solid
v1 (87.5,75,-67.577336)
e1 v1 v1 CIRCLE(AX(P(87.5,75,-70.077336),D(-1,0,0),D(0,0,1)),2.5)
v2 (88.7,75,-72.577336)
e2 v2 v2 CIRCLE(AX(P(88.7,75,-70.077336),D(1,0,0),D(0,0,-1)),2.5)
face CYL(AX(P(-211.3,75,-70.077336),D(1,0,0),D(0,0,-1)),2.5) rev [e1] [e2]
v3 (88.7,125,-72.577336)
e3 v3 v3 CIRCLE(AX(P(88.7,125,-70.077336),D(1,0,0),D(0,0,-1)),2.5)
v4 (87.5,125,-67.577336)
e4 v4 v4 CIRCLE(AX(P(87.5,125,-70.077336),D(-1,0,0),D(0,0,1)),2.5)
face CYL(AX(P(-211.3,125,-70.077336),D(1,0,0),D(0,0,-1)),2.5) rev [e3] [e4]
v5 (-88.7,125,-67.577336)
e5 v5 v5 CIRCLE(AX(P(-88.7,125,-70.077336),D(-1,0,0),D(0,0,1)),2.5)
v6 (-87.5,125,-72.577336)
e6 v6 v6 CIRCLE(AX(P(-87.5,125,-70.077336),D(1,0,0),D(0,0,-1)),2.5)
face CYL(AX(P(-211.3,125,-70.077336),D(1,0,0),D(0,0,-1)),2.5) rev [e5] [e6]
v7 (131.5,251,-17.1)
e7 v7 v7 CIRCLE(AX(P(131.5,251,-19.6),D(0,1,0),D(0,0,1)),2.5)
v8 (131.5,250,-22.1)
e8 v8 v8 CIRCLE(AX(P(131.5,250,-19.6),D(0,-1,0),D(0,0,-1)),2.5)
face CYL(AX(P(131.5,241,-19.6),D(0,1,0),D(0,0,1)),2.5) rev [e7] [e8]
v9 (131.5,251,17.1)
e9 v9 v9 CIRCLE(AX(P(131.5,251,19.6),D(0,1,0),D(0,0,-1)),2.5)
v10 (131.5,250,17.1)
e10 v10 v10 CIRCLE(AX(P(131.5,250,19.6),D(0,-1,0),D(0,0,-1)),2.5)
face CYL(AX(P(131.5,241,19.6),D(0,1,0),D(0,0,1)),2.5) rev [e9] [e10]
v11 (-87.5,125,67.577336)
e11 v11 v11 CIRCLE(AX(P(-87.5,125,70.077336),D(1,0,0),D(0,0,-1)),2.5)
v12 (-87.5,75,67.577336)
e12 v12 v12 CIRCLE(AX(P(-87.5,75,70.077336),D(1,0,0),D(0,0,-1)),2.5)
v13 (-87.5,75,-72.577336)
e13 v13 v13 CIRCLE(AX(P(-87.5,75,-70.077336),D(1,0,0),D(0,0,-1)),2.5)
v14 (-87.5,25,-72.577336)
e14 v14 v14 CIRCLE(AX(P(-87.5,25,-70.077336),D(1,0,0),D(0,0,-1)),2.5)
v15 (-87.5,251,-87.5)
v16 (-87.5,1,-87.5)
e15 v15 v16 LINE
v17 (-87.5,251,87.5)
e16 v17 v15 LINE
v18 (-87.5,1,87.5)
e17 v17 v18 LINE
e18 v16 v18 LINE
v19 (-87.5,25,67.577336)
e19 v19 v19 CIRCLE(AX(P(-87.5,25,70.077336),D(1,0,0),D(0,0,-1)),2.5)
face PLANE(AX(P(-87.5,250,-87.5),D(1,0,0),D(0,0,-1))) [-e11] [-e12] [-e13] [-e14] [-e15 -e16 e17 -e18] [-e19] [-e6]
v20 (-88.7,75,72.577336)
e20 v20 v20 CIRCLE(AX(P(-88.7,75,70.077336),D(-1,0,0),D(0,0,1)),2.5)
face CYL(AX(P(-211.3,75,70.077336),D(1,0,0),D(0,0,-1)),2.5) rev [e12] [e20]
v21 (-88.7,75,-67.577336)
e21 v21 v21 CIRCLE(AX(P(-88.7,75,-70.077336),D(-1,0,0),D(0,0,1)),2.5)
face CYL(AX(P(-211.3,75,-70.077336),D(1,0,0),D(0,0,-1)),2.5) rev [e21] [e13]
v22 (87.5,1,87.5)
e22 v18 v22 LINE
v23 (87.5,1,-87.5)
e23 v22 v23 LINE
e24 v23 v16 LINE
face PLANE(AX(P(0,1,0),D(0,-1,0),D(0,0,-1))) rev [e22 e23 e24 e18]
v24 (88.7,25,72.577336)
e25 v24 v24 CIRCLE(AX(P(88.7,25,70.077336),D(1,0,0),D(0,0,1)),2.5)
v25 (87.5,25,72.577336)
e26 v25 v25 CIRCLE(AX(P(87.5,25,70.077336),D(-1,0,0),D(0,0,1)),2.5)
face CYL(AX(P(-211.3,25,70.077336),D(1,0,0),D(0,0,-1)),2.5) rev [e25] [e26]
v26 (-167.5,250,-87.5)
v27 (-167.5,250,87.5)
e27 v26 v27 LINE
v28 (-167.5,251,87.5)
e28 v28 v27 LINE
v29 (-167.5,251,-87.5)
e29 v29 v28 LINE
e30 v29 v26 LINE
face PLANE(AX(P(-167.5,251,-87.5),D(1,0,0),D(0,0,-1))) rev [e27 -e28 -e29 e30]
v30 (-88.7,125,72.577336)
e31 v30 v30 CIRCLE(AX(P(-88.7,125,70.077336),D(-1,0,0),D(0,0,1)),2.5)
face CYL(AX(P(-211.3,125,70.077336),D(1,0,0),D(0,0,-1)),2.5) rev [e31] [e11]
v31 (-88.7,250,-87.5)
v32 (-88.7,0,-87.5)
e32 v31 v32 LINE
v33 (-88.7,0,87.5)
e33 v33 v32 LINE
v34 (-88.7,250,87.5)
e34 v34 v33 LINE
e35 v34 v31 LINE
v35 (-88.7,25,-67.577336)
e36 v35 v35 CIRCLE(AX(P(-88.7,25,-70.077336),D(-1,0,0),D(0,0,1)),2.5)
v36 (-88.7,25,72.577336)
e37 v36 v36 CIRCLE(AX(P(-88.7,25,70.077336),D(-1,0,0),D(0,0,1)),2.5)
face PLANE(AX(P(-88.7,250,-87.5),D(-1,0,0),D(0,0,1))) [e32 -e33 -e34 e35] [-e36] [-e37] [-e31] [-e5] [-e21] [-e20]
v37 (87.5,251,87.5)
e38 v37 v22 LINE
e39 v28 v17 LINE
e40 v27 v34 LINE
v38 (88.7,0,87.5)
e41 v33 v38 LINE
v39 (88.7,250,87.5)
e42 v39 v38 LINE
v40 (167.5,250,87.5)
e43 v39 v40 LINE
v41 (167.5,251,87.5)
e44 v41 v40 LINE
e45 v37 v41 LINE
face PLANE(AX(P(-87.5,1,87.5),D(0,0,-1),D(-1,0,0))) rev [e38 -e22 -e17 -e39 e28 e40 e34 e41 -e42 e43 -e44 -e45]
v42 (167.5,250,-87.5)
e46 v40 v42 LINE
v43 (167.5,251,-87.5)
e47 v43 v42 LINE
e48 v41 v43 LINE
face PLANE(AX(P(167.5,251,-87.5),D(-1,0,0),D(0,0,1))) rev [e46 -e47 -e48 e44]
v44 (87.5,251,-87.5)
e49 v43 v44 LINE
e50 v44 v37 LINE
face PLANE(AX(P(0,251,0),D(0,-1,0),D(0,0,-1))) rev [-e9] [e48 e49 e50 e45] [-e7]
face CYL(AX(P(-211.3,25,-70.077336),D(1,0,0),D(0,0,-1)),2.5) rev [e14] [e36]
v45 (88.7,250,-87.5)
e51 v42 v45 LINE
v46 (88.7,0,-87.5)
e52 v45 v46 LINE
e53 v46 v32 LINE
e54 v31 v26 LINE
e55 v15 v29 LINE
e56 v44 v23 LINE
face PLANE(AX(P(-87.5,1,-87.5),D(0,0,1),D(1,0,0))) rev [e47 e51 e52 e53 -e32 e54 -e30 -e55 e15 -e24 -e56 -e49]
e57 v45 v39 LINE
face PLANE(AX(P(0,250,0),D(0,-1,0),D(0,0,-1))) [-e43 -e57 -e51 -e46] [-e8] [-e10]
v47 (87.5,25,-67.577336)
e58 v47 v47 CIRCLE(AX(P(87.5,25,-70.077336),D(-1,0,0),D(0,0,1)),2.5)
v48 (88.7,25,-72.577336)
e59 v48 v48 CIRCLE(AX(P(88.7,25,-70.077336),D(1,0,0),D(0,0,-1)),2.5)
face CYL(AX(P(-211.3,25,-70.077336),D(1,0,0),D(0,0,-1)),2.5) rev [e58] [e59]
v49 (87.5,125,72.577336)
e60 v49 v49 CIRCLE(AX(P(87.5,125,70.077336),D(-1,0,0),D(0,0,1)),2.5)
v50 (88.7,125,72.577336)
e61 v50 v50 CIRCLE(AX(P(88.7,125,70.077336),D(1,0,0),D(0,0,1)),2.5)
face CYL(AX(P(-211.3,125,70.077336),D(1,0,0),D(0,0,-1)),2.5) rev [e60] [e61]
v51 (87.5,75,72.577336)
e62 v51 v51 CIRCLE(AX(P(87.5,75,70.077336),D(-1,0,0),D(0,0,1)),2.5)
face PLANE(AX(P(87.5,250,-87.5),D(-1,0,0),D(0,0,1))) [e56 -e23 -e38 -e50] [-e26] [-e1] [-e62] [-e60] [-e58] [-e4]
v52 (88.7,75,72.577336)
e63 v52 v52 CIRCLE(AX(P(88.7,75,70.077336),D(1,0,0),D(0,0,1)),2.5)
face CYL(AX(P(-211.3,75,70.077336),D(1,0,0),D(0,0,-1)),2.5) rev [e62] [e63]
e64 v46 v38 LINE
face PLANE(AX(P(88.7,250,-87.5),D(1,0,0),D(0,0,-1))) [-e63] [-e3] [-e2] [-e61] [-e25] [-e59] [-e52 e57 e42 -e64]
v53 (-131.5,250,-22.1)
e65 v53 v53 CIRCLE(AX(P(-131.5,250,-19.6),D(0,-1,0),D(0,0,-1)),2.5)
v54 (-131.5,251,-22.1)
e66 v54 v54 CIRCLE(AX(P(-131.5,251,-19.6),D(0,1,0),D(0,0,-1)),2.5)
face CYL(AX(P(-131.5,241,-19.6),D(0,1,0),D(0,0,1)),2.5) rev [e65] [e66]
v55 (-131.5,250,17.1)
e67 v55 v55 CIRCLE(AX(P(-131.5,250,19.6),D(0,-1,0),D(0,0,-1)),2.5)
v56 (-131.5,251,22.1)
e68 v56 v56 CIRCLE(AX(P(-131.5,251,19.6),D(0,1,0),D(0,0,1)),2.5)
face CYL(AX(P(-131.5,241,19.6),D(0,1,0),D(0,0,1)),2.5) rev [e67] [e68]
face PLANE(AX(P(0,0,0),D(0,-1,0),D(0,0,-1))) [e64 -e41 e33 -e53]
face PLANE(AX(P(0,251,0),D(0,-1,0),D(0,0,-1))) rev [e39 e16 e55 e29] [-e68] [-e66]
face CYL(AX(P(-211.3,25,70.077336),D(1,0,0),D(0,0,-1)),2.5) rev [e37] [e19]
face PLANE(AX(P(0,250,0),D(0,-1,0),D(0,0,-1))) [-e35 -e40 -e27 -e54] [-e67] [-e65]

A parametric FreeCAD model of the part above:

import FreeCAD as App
import Part
import Sketcher

V = App.Vector


def add_polygon(sketch, points):
    """Adds a closed chain of lines whose ends are joined by coincident constraints."""
    first, n = sketch.GeometryCount, len(points)
    for a, b in zip(points, points[1:] + points[:1]):
        sketch.addGeometry(Part.LineSegment(App.Vector(*a, 0), App.Vector(*b, 0)), False)
    for i in range(n):
        sketch.addConstraint(Sketcher.Constraint("Coincident", first + i, 2, first + (i + 1) % n, 1))

doc = App.newDocument("Part")
body = doc.addObject("PartDesign::Body", "Body")

sketch1 = body.newObject("Sketcher::SketchObject", "Sketch")
sketch1.AttachmentSupport = (doc.getObject("XZ_Plane"), [""])
sketch1.MapMode = "FlatFace"
add_polygon(sketch1, [(-87.5, -87.5), (-87.5, 87.5), (87.5, 87.5), (87.5, -87.5)])
sketch1.addConstraint([
    Sketcher.Constraint("Vertical", 0),
    Sketcher.Constraint("Horizontal", 1),
    Sketcher.Constraint("Vertical", 2),
    Sketcher.Constraint("Horizontal", 3),
    Sketcher.Constraint("Symmetric", 0, 2, 2, 2, -1, 1),
    Sketcher.Constraint("Equal", 3, 0),
    Sketcher.Constraint("DistanceX", 1, 1, 1, 2, 175.0),
])
pad1 = body.newObject("PartDesign::Pad", "Pad")
pad1.Profile = sketch1
pad1.Length = 1
pad1.Reversed = True

sketch2 = body.newObject("Sketcher::SketchObject", "Sketch001")
sketch2.AttachmentSupport = (doc.getObject("XZ_Plane"), [""])
sketch2.MapMode = "FlatFace"
add_polygon(sketch2, [(-88.7, 87.5), (-88.7, -87.5), (-87.5, -87.5), (-87.5, 87.5)])
add_polygon(sketch2, [(87.5, 87.5), (87.5, -87.5), (88.7, -87.5), (88.7, 87.5)])
sketch2.addConstraint([
    Sketcher.Constraint("Vertical", 0),
    Sketcher.Constraint("Horizontal", 1),
    Sketcher.Constraint("Vertical", 2),
    Sketcher.Constraint("Horizontal", 3),
    Sketcher.Constraint("Vertical", 4),
    Sketcher.Constraint("Horizontal", 5),
    Sketcher.Constraint("Vertical", 6),
    Sketcher.Constraint("Horizontal", 7),
    Sketcher.Constraint("Symmetric", 2, 2, 4, 2, -1, 1),
    Sketcher.Constraint("Symmetric", 0, 2, 6, 2, -1, 1),
    Sketcher.Constraint("Horizontal", 1, 2, 4, 2),
    Sketcher.Constraint("DistanceY", 0, 2, 0, 1, 175.0),
    Sketcher.Constraint("DistanceX", 1, 1, 1, 2, 1.2),
    Sketcher.Constraint("DistanceX", 1, 2, 4, 2, 175.0),
])
pad2 = body.newObject("PartDesign::Pad", "Pad001")
pad2.Profile = sketch2
pad2.Length = 250
pad2.Reversed = True

sketch3 = body.newObject("Sketcher::SketchObject", "Sketch002")
sketch3.AttachmentSupport = (doc.getObject("XZ_Plane"), [""])
sketch3.MapMode = "FlatFace"
sketch3.AttachmentOffset = App.Placement(V(0, 0, -250), App.Rotation())
add_polygon(sketch3, [(-167.5, -87.5), (-167.5, 87.5), (-87.5, 87.5), (-87.5, -87.5)])
add_polygon(sketch3, [(87.5, -87.5), (87.5, 87.5), (167.5, 87.5), (167.5, -87.5)])
sketch3.addConstraint([
    Sketcher.Constraint("Vertical", 0),
    Sketcher.Constraint("Horizontal", 1),
    Sketcher.Constraint("Vertical", 2),
    Sketcher.Constraint("Horizontal", 3),
    Sketcher.Constraint("Vertical", 4),
    Sketcher.Constraint("Horizontal", 5),
    Sketcher.Constraint("Vertical", 6),
    Sketcher.Constraint("Horizontal", 7),
    Sketcher.Constraint("Symmetric", 2, 2, 4, 2, -1, 1),
    Sketcher.Constraint("Symmetric", 0, 2, 6, 2, -1, 1),
    Sketcher.Constraint("Horizontal", 1, 2, 4, 2),
    Sketcher.Constraint("DistanceX", 1, 1, 1, 2, 80.0),
    Sketcher.Constraint("DistanceY", 0, 1, 0, 2, 175.0),
    Sketcher.Constraint("DistanceX", 1, 2, 4, 2, 175.0),
])
pad3 = body.newObject("PartDesign::Pad", "Pad002")
pad3.Profile = sketch3
pad3.Length = 1
pad3.Reversed = True

sketch4 = body.newObject("Sketcher::SketchObject", "Sketch003")
sketch4.AttachmentSupport = (doc.getObject("XZ_Plane"), [""])
sketch4.MapMode = "FlatFace"
sketch4.AttachmentOffset = App.Placement(V(0, 0, -251), App.Rotation())
sketch4.addGeometry([
    Part.Circle(V(131.5, -19.6, 0), V(0, 0, 1), 2.5),
    Part.Circle(V(131.5, 19.6, 0), V(0, 0, 1), 2.5),
    Part.Circle(V(-131.5, 19.6, 0), V(0, 0, 1), 2.5),
    Part.Circle(V(-131.5, -19.6, 0), V(0, 0, 1), 2.5),
], False)
sketch4.addConstraint([
    Sketcher.Constraint("Equal", 0, 1),
    Sketcher.Constraint("Equal", 1, 2),
    Sketcher.Constraint("Equal", 2, 3),
    Sketcher.Constraint("Symmetric", 0, 3, 2, 3, -1, 1),
    Sketcher.Constraint("Symmetric", 1, 3, 3, 3, -1, 1),
    Sketcher.Constraint("Symmetric", 1, 3, 2, 3, -2),
    Sketcher.Constraint("Diameter", 0, 5.0),
    Sketcher.Constraint("DistanceX", 2, 3, 1, 3, 263.0),
    Sketcher.Constraint("DistanceY", 0, 3, -1, 1, 19.6),
])
pocket1 = body.newObject("PartDesign::Pocket", "Pocket")
pocket1.Profile = sketch4
pocket1.Length = 10
pocket1.Reversed = True

sketch5 = body.newObject("Sketcher::SketchObject", "Sketch004")
sketch5.AttachmentSupport = (doc.getObject("YZ_Plane"), [""])
sketch5.MapMode = "FlatFace"
sketch5.AttachmentOffset = App.Placement(V(0, 0, 88.7), App.Rotation())
sketch5.addGeometry([
    Part.Circle(V(25, -70.077336, 0), V(0, 0, 1), 2.5),
    Part.Circle(V(75, -70.077336, 0), V(0, 0, 1), 2.5),
    Part.Circle(V(125, -70.077336, 0), V(0, 0, 1), 2.5),
    Part.Circle(V(125, 70.077336, 0), V(0, 0, 1), 2.5),
    Part.Circle(V(75, 70.077336, 0), V(0, 0, 1), 2.5),
    Part.Circle(V(25, 70.077336, 0), V(0, 0, 1), 2.5),
], False)
sketch5.addConstraint([
    Sketcher.Constraint("Equal", 0, 1),
    Sketcher.Constraint("Equal", 1, 2),
    Sketcher.Constraint("Equal", 2, 3),
    Sketcher.Constraint("Equal", 3, 4),
    Sketcher.Constraint("Equal", 4, 5),
    Sketcher.Constraint("Symmetric", 2, 3, 3, 3, -1),
    Sketcher.Constraint("Symmetric", 1, 3, 4, 3, -1),
    Sketcher.Constraint("Symmetric", 0, 3, 5, 3, -1),
    Sketcher.Constraint("Horizontal", 0, 3, 1, 3),
    Sketcher.Constraint("Horizontal", 1, 3, 2, 3),
    Sketcher.Constraint("Diameter", 0, 5.0),
    Sketcher.Constraint("DistanceX", -1, 1, 0, 3, 25.0),
    Sketcher.Constraint("DistanceX", -1, 1, 1, 3, 75.0),
    Sketcher.Constraint("DistanceX", -1, 1, 2, 3, 125.0),
    Sketcher.Constraint("DistanceY", 0, 3, -1, 1, 70.077336),
])
pocket2 = body.newObject("PartDesign::Pocket", "Pocket001")
pocket2.Profile = sketch5
pocket2.Length = 300

doc.recompute()
